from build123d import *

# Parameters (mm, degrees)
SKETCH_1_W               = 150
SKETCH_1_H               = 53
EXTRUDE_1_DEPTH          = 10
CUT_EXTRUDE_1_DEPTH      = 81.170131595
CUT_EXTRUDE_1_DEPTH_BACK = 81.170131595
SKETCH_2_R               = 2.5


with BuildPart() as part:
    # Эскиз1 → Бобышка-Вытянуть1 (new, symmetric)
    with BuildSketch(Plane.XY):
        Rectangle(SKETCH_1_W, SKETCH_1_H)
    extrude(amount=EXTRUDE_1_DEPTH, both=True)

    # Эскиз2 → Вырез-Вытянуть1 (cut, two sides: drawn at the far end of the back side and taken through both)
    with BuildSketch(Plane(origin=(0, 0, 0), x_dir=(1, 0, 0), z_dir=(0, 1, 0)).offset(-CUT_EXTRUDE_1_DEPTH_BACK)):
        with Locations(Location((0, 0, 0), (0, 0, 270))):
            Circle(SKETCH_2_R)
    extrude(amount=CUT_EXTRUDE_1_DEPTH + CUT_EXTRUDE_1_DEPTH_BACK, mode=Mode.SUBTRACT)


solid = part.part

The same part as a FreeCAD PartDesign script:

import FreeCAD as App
import Part
import Sketcher
from FreeCAD import Vector


def add_polygon(sketch, points):
    """Adds a closed chain of lines whose ends are joined by coincident constraints."""
    first, n = sketch.GeometryCount, len(points)
    for a, b in zip(points, points[1:] + points[:1]):
        sketch.addGeometry(Part.LineSegment(App.Vector(*a, 0), App.Vector(*b, 0)), False)
    for i in range(n):
        sketch.addConstraint(Sketcher.Constraint("Coincident", first + i, 2, first + (i + 1) % n, 1))

doc = App.newDocument("Part")
body = doc.addObject("PartDesign::Body", "Body")

# Sketch on XY plane
sketch1 = body.newObject("Sketcher::SketchObject", "Sketch")
sketch1.AttachmentSupport = (doc.getObject("XY_Plane"), [""])
sketch1.MapMode = "FlatFace"
add_polygon(sketch1, [(-75, 26.5), (-75, -26.5), (75, -26.5), (75, 26.5)])  # lines 0-3
sketch1.addConstraint(Sketcher.Constraint("Vertical", 0))
sketch1.addConstraint(Sketcher.Constraint("Horizontal", 1))
sketch1.addConstraint(Sketcher.Constraint("Vertical", 2))
sketch1.addConstraint(Sketcher.Constraint("Horizontal", 3))
sketch1.addConstraint(Sketcher.Constraint("Symmetric", 0, 2, 2, 2, -1, 1))
sketch1.addConstraint(Sketcher.Constraint("DistanceX", 1, 1, 1, 2, 150.0))
sketch1.addConstraint(Sketcher.Constraint("DistanceY", 0, 2, 0, 1, 53.0))
pad1 = body.newObject("PartDesign::Pad", "Pad")
pad1.Profile = sketch1
pad1.Length = 20
pad1.Midplane = True

# Sketch on XZ plane
sketch2 = body.newObject("Sketcher::SketchObject", "Sketch001")
sketch2.AttachmentSupport = (doc.getObject("XZ_Plane"), [""])
sketch2.MapMode = "FlatFace"
sketch2.addGeometry(Part.Circle(Vector(0, 0, 0), Vector(0, 0, 1), 2.5), False)
sketch2.addConstraint(Sketcher.Constraint("Coincident", 0, 3, -1, 1))
sketch2.addConstraint(Sketcher.Constraint("Diameter", 0, 5.0))
pocket1 = body.newObject("PartDesign::Pocket", "Pocket")
pocket1.Profile = sketch2
pocket1.Type = "ThroughAll"
pocket1.Midplane = True

doc.recompute()
